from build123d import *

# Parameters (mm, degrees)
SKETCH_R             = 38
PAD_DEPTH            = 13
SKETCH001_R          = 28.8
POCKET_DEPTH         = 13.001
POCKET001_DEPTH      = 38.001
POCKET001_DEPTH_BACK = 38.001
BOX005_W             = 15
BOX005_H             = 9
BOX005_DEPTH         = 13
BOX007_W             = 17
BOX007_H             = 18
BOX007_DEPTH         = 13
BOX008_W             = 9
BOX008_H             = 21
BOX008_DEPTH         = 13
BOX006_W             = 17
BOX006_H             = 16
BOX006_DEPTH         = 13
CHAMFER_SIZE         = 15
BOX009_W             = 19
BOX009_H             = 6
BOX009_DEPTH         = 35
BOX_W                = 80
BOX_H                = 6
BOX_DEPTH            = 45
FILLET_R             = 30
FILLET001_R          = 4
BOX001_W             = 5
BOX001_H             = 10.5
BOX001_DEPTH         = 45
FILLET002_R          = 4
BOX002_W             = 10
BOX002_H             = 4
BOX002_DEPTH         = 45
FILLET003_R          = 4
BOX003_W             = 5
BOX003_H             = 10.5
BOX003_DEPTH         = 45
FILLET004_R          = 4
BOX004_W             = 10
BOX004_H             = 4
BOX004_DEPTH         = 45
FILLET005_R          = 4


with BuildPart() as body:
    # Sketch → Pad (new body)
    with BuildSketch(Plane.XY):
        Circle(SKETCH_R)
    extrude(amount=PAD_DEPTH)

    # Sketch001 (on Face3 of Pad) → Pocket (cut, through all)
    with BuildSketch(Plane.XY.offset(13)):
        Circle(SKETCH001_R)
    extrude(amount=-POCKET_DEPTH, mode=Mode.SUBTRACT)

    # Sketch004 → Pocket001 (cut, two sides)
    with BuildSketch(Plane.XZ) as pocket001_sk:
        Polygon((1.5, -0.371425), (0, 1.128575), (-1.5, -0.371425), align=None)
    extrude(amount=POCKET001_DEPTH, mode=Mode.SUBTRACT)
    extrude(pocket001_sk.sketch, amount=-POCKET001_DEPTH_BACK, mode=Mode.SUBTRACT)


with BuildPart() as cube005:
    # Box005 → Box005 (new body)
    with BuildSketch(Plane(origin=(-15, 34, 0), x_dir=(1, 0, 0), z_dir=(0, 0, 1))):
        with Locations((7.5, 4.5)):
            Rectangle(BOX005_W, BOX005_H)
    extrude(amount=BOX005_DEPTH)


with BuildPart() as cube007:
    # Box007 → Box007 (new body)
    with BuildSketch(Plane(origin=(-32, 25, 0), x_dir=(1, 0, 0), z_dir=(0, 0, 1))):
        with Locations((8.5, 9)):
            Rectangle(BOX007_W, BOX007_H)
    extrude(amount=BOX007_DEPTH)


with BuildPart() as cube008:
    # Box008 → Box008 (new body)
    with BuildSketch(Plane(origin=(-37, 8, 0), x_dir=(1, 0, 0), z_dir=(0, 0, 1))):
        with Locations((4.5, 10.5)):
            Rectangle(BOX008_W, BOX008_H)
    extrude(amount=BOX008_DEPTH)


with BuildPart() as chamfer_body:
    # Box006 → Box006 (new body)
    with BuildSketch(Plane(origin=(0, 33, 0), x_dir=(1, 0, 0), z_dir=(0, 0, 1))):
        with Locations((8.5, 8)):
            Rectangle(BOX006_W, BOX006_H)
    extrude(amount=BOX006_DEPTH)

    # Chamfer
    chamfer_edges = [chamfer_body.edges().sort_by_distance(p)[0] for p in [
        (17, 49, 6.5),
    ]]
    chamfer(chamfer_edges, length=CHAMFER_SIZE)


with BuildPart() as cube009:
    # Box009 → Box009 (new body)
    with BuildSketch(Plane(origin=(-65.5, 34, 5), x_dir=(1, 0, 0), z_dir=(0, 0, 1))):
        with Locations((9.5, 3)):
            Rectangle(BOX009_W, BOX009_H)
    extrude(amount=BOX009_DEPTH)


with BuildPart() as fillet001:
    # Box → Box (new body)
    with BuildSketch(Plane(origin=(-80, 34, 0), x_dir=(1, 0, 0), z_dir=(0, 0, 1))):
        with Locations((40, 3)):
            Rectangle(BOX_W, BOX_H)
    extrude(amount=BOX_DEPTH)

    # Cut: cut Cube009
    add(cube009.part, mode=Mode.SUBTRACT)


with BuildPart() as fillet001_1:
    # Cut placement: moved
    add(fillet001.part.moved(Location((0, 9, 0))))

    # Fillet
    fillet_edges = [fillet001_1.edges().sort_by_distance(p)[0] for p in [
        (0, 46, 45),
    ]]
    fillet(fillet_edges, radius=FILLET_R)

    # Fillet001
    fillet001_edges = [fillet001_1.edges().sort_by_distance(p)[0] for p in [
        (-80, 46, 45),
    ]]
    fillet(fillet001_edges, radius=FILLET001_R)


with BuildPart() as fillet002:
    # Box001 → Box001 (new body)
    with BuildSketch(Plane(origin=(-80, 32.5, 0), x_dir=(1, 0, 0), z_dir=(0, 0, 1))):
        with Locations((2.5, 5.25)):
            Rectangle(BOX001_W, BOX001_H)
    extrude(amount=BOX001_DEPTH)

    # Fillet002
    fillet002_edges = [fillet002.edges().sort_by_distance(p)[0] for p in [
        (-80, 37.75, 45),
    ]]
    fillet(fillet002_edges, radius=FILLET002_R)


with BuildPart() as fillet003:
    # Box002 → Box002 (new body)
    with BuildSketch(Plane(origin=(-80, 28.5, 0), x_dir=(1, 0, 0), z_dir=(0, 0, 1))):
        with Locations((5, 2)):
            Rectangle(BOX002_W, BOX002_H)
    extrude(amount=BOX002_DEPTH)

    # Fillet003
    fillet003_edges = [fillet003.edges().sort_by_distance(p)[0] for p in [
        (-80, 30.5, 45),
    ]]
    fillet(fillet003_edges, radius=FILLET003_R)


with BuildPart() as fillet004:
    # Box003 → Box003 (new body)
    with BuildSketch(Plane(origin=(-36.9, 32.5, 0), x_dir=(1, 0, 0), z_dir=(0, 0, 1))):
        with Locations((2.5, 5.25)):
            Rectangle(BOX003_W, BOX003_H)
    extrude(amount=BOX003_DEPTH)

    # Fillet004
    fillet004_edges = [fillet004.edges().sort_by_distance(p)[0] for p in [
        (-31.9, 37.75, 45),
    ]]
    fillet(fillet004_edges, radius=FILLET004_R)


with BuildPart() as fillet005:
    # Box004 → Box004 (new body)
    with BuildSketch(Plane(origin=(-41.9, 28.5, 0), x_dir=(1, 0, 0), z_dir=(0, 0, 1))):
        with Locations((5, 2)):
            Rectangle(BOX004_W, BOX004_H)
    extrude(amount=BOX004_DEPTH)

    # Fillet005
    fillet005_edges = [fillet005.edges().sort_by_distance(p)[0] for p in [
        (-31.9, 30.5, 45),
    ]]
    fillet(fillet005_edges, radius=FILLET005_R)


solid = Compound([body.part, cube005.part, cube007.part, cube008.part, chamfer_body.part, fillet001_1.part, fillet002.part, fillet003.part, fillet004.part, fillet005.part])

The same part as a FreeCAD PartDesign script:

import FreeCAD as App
import Part
import Sketcher
from FreeCAD import Vector


def edges_at(feature, points):
    """Names of the edges that pass closest to the given points."""
    edges = feature.Shape.Edges
    near = lambda p: min(range(len(edges)), key=lambda i: edges[i].distToShape(Part.Vertex(*p))[0])
    return sorted({f"Edge{near(p) + 1}" for p in points})

doc = App.newDocument("Part")
body = doc.addObject("PartDesign::Body", "Body")

# Sketch on XY plane
sketch1 = doc.addObject("Sketcher::SketchObject", "Sketch")
body.addObject(sketch1)
sketch1.AttachmentSupport = (doc.XY_Plane, [""])
sketch1.MapMode = "FlatFace"
sketch1.addGeometry(Part.Circle(Vector(0, 0, 0), Vector(0, 0, 1), 38), False)
sketch1.addConstraint(Sketcher.Constraint("Coincident", 0, 3, -1, 1))
sketch1.addConstraint(Sketcher.Constraint("Diameter", 0, 76.0))
pad1 = doc.addObject("PartDesign::Pad", "Pad")
body.addObject(pad1)
pad1.Profile = sketch1
pad1.Length = 13

# Sketch on XY plane
sketch2 = doc.addObject("Sketcher::SketchObject", "Sketch001")
body.addObject(sketch2)
sketch2.AttachmentSupport = (doc.XY_Plane, [""])
sketch2.MapMode = "FlatFace"
sketch2.AttachmentOffset = App.Placement(Vector(0, 0, 13), App.Rotation())
sketch2.addGeometry(Part.Circle(Vector(0, 0, 0), Vector(0, 0, 1), 29), False)
sketch2.addConstraint(Sketcher.Constraint("Coincident", 0, 3, -1, 1))
sketch2.addConstraint(Sketcher.Constraint("Diameter", 0, 57.6))
pocket1 = doc.addObject("PartDesign::Pocket", "Pocket")
body.addObject(pocket1)
pocket1.Profile = sketch2
pocket1.Type = "ThroughAll"

# Sketch on XZ plane
sketch3 = doc.addObject("Sketcher::SketchObject", "Sketch002")
body.addObject(sketch3)
sketch3.AttachmentSupport = (doc.XZ_Plane, [""])
sketch3.MapMode = "FlatFace"
sketch3.addGeometry(Part.LineSegment(Vector(1.5, -0.4, 0), Vector(0, 1.1, 0)), False)
sketch3.addGeometry(Part.LineSegment(Vector(0, 1.1, 0), Vector(-1.5, -0.4, 0)), False)
sketch3.addGeometry(Part.LineSegment(Vector(-1.5, -0.4, 0), Vector(1.5, -0.4, 0)), False)
sketch3.addConstraint(Sketcher.Constraint("Coincident", 0, 2, 1, 1))
sketch3.addConstraint(Sketcher.Constraint("Coincident", 1, 2, 2, 1))
sketch3.addConstraint(Sketcher.Constraint("Coincident", 2, 2, 0, 1))
sketch3.addConstraint(Sketcher.Constraint("Horizontal", 2))
sketch3.addConstraint(Sketcher.Constraint("PointOnObject", 0, 2, -2))
sketch3.addConstraint(Sketcher.Constraint("Perpendicular", 0, 1))
sketch3.addConstraint(Sketcher.Constraint("Equal", 0, 1))
sketch3.addConstraint(Sketcher.Constraint("DistanceX", 2, 1, 2, 2, 3.0))
sketch3.addConstraint(Sketcher.Constraint("DistanceY", -1, 1, 0, 2, 1.128575))
pocket2 = doc.addObject("PartDesign::Pocket", "Pocket001")
body.addObject(pocket2)
pocket2.Profile = sketch3
pocket2.Type = "ThroughAll"
pocket2.Midplane = True
body2 = doc.addObject("PartDesign::Body", "Body001")

# Sketch on XY plane
sketch4 = doc.addObject("Sketcher::SketchObject", "Sketch003")
body2.addObject(sketch4)
sketch4.AttachmentSupport = (doc.getObject("XY_Plane001"), [""])
sketch4.MapMode = "FlatFace"
sketch4.addGeometry(Part.LineSegment(Vector(-15, 43, 0), Vector(-15, 34, 0)), False)
sketch4.addGeometry(Part.LineSegment(Vector(-15, 34, 0), Vector(0, 34, 0)), False)
sketch4.addGeometry(Part.LineSegment(Vector(0, 34, 0), Vector(0, 43, 0)), False)
sketch4.addGeometry(Part.LineSegment(Vector(0, 43, 0), Vector(-15, 43, 0)), False)
sketch4.addConstraint(Sketcher.Constraint("Coincident", 0, 2, 1, 1))
sketch4.addConstraint(Sketcher.Constraint("Coincident", 1, 2, 2, 1))
sketch4.addConstraint(Sketcher.Constraint("Coincident", 2, 2, 3, 1))
sketch4.addConstraint(Sketcher.Constraint("Coincident", 3, 2, 0, 1))
sketch4.addConstraint(Sketcher.Constraint("Vertical", 0))
sketch4.addConstraint(Sketcher.Constraint("Horizontal", 1))
sketch4.addConstraint(Sketcher.Constraint("Vertical", 2))
sketch4.addConstraint(Sketcher.Constraint("Horizontal", 3))
sketch4.addConstraint(Sketcher.Constraint("PointOnObject", 1, 2, -2))
sketch4.addConstraint(Sketcher.Constraint("DistanceX", 1, 1, 1, 2, 15.0))
sketch4.addConstraint(Sketcher.Constraint("DistanceY", 0, 2, 0, 1, 9.0))
sketch4.addConstraint(Sketcher.Constraint("DistanceY", -1, 1, 0, 2, 34.0))
pad2 = doc.addObject("PartDesign::Pad", "Pad001")
body2.addObject(pad2)
pad2.Profile = sketch4
pad2.Length = 13
body3 = doc.addObject("PartDesign::Body", "Body002")

# Sketch on XY plane
sketch5 = doc.addObject("Sketcher::SketchObject", "Sketch004")
body3.addObject(sketch5)
sketch5.AttachmentSupport = (doc.getObject("XY_Plane002"), [""])
sketch5.MapMode = "FlatFace"
sketch5.addGeometry(Part.LineSegment(Vector(-32, 43, 0), Vector(-32, 25, 0)), False)
sketch5.addGeometry(Part.LineSegment(Vector(-32, 25, 0), Vector(-15, 25, 0)), False)
sketch5.addGeometry(Part.LineSegment(Vector(-15, 25, 0), Vector(-15, 43, 0)), False)
sketch5.addGeometry(Part.LineSegment(Vector(-15, 43, 0), Vector(-32, 43, 0)), False)
sketch5.addConstraint(Sketcher.Constraint("Coincident", 0, 2, 1, 1))
sketch5.addConstraint(Sketcher.Constraint("Coincident", 1, 2, 2, 1))
sketch5.addConstraint(Sketcher.Constraint("Coincident", 2, 2, 3, 1))
sketch5.addConstraint(Sketcher.Constraint("Coincident", 3, 2, 0, 1))
sketch5.addConstraint(Sketcher.Constraint("Vertical", 0))
sketch5.addConstraint(Sketcher.Constraint("Horizontal", 1))
sketch5.addConstraint(Sketcher.Constraint("Vertical", 2))
sketch5.addConstraint(Sketcher.Constraint("Horizontal", 3))
sketch5.addConstraint(Sketcher.Constraint("DistanceX", 1, 1, 1, 2, 17.0))
sketch5.addConstraint(Sketcher.Constraint("DistanceY", 0, 2, 0, 1, 18.0))
sketch5.addConstraint(Sketcher.Constraint("DistanceX", 0, 2, -1, 1, 32.0))
sketch5.addConstraint(Sketcher.Constraint("DistanceY", -1, 1, 0, 2, 25.0))
pad3 = doc.addObject("PartDesign::Pad", "Pad002")
body3.addObject(pad3)
pad3.Profile = sketch5
pad3.Length = 13
body4 = doc.addObject("PartDesign::Body", "Body003")

# Sketch on XY plane
sketch6 = doc.addObject("Sketcher::SketchObject", "Sketch005")
body4.addObject(sketch6)
sketch6.AttachmentSupport = (doc.getObject("XY_Plane003"), [""])
sketch6.MapMode = "FlatFace"
sketch6.addGeometry(Part.LineSegment(Vector(-37, 29, 0), Vector(-37, 8, 0)), False)
sketch6.addGeometry(Part.LineSegment(Vector(-37, 8, 0), Vector(-28, 8, 0)), False)
sketch6.addGeometry(Part.LineSegment(Vector(-28, 8, 0), Vector(-28, 29, 0)), False)
sketch6.addGeometry(Part.LineSegment(Vector(-28, 29, 0), Vector(-37, 29, 0)), False)
sketch6.addConstraint(Sketcher.Constraint("Coincident", 0, 2, 1, 1))
sketch6.addConstraint(Sketcher.Constraint("Coincident", 1, 2, 2, 1))
sketch6.addConstraint(Sketcher.Constraint("Coincident", 2, 2, 3, 1))
sketch6.addConstraint(Sketcher.Constraint("Coincident", 3, 2, 0, 1))
sketch6.addConstraint(Sketcher.Constraint("Vertical", 0))
sketch6.addConstraint(Sketcher.Constraint("Horizontal", 1))
sketch6.addConstraint(Sketcher.Constraint("Vertical", 2))
sketch6.addConstraint(Sketcher.Constraint("Horizontal", 3))
sketch6.addConstraint(Sketcher.Constraint("DistanceX", 1, 1, 1, 2, 9.0))
sketch6.addConstraint(Sketcher.Constraint("DistanceY", 0, 2, 0, 1, 21.0))
sketch6.addConstraint(Sketcher.Constraint("DistanceX", 0, 2, -1, 1, 37.0))
sketch6.addConstraint(Sketcher.Constraint("DistanceY", -1, 1, 0, 2, 8.0))
pad4 = doc.addObject("PartDesign::Pad", "Pad003")
body4.addObject(pad4)
pad4.Profile = sketch6
pad4.Length = 13
body5 = doc.addObject("PartDesign::Body", "Body004")

# Sketch on XY plane
sketch7 = doc.addObject("Sketcher::SketchObject", "Sketch006")
body5.addObject(sketch7)
sketch7.AttachmentSupport = (doc.getObject("XY_Plane004"), [""])
sketch7.MapMode = "FlatFace"
sketch7.addGeometry(Part.LineSegment(Vector(0, 49, 0), Vector(0, 33, 0)), False)
sketch7.addGeometry(Part.LineSegment(Vector(0, 33, 0), Vector(17, 33, 0)), False)
sketch7.addGeometry(Part.LineSegment(Vector(17, 33, 0), Vector(17, 49, 0)), False)
sketch7.addGeometry(Part.LineSegment(Vector(17, 49, 0), Vector(0, 49, 0)), False)
sketch7.addConstraint(Sketcher.Constraint("Coincident", 0, 2, 1, 1))
sketch7.addConstraint(Sketcher.Constraint("Coincident", 1, 2, 2, 1))
sketch7.addConstraint(Sketcher.Constraint("Coincident", 2, 2, 3, 1))
sketch7.addConstraint(Sketcher.Constraint("Coincident", 3, 2, 0, 1))
sketch7.addConstraint(Sketcher.Constraint("Vertical", 0))
sketch7.addConstraint(Sketcher.Constraint("Horizontal", 1))
sketch7.addConstraint(Sketcher.Constraint("Vertical", 2))
sketch7.addConstraint(Sketcher.Constraint("Horizontal", 3))
sketch7.addConstraint(Sketcher.Constraint("PointOnObject", 0, 2, -2))
sketch7.addConstraint(Sketcher.Constraint("DistanceX", 1, 1, 1, 2, 17.0))
sketch7.addConstraint(Sketcher.Constraint("DistanceY", 0, 2, 0, 1, 16.0))
sketch7.addConstraint(Sketcher.Constraint("DistanceY", -1, 1, 0, 2, 33.0))
pad5 = doc.addObject("PartDesign::Pad", "Pad004")
body5.addObject(pad5)
pad5.Profile = sketch7
pad5.Length = 13
doc.recompute()

chamfer = doc.addObject("PartDesign::Chamfer", "Chamfer")
body5.addObject(chamfer)
chamfer.Base = (pad5, edges_at(pad5, [(17, 49, 6.5)]))
chamfer.Size = 15
body6 = doc.addObject("PartDesign::Body", "Body005")

# Sketch on XY plane
sketch8 = doc.addObject("Sketcher::SketchObject", "Sketch007")
body6.addObject(sketch8)
sketch8.AttachmentSupport = (doc.getObject("XY_Plane005"), [""])
sketch8.MapMode = "FlatFace"
sketch8.AttachmentOffset = App.Placement(Vector(0, 0, 5), App.Rotation())
sketch8.addGeometry(Part.LineSegment(Vector(-66, 40, 0), Vector(-66, 34, 0)), False)
sketch8.addGeometry(Part.LineSegment(Vector(-66, 34, 0), Vector(-46, 34, 0)), False)
sketch8.addGeometry(Part.LineSegment(Vector(-46, 34, 0), Vector(-46, 40, 0)), False)
sketch8.addGeometry(Part.LineSegment(Vector(-46, 40, 0), Vector(-66, 40, 0)), False)
sketch8.addConstraint(Sketcher.Constraint("Coincident", 0, 2, 1, 1))
sketch8.addConstraint(Sketcher.Constraint("Coincident", 1, 2, 2, 1))
sketch8.addConstraint(Sketcher.Constraint("Coincident", 2, 2, 3, 1))
sketch8.addConstraint(Sketcher.Constraint("Coincident", 3, 2, 0, 1))
sketch8.addConstraint(Sketcher.Constraint("Vertical", 0))
sketch8.addConstraint(Sketcher.Constraint("Horizontal", 1))
sketch8.addConstraint(Sketcher.Constraint("Vertical", 2))
sketch8.addConstraint(Sketcher.Constraint("Horizontal", 3))
sketch8.addConstraint(Sketcher.Constraint("DistanceX", 1, 1, 1, 2, 19.0))
sketch8.addConstraint(Sketcher.Constraint("DistanceY", 0, 2, 0, 1, 6.0))
sketch8.addConstraint(Sketcher.Constraint("DistanceY", -1, 1, 0, 2, 34.0))
sketch8.addConstraint(Sketcher.Constraint("DistanceX", 0, 2, -1, 1, 65.5))
pad6 = doc.addObject("PartDesign::Pad", "Pad005")
body6.addObject(pad6)
pad6.Profile = sketch8
pad6.Length = 35
body7 = doc.addObject("PartDesign::Body", "Body006")

# Sketch on XY plane
sketch9 = doc.addObject("Sketcher::SketchObject", "Sketch008")
body7.addObject(sketch9)
sketch9.AttachmentSupport = (doc.getObject("XY_Plane006"), [""])
sketch9.MapMode = "FlatFace"
sketch9.addGeometry(Part.LineSegment(Vector(-80, 40, 0), Vector(-80, 34, 0)), False)
sketch9.addGeometry(Part.LineSegment(Vector(-80, 34, 0), Vector(0, 34, 0)), False)
sketch9.addGeometry(Part.LineSegment(Vector(0, 34, 0), Vector(0, 40, 0)), False)
sketch9.addGeometry(Part.LineSegment(Vector(0, 40, 0), Vector(-80, 40, 0)), False)
sketch9.addConstraint(Sketcher.Constraint("Coincident", 0, 2, 1, 1))
sketch9.addConstraint(Sketcher.Constraint("Coincident", 1, 2, 2, 1))
sketch9.addConstraint(Sketcher.Constraint("Coincident", 2, 2, 3, 1))
sketch9.addConstraint(Sketcher.Constraint("Coincident", 3, 2, 0, 1))
sketch9.addConstraint(Sketcher.Constraint("Vertical", 0))
sketch9.addConstraint(Sketcher.Constraint("Horizontal", 1))
sketch9.addConstraint(Sketcher.Constraint("Vertical", 2))
sketch9.addConstraint(Sketcher.Constraint("Horizontal", 3))
sketch9.addConstraint(Sketcher.Constraint("PointOnObject", 1, 2, -2))
sketch9.addConstraint(Sketcher.Constraint("DistanceX", 1, 1, 1, 2, 80.0))
sketch9.addConstraint(Sketcher.Constraint("DistanceY", 0, 2, 0, 1, 6.0))
sketch9.addConstraint(Sketcher.Constraint("DistanceY", -1, 1, 0, 2, 34.0))
pad7 = doc.addObject("PartDesign::Pad", "Pad006")
body7.addObject(pad7)
pad7.Profile = sketch9
pad7.Length = 45
doc.recompute()

boolean = doc.addObject("PartDesign::Boolean", "Boolean")
body7.addObject(boolean)
boolean.Type = "Cut"
boolean.addObjects([body6])
body8 = doc.addObject("PartDesign::Body", "Body007")
doc.recompute()

body7.Placement = App.Placement(Vector(0, 9, 0), App.Rotation(Vector(0, 0, 1), 0))
boolean2 = doc.addObject("PartDesign::Boolean", "Boolean001")
body8.addObject(boolean2)
boolean2.Type = "Fuse"
boolean2.addObjects([body7])
doc.recompute()

fillet = doc.addObject("PartDesign::Fillet", "Fillet")
body8.addObject(fillet)
fillet.Base = (boolean2, edges_at(boolean2, [(0, 46, 45)]))
fillet.Radius = 30
doc.recompute()

fillet2 = doc.addObject("PartDesign::Fillet", "Fillet001")
body8.addObject(fillet2)
fillet2.Base = (fillet, edges_at(fillet, [(-80, 46, 45)]))
fillet2.Radius = 4
body9 = doc.addObject("PartDesign::Body", "Body008")

# Sketch on XY plane
sketch10 = doc.addObject("Sketcher::SketchObject", "Sketch009")
body9.addObject(sketch10)
sketch10.AttachmentSupport = (doc.getObject("XY_Plane008"), [""])
sketch10.MapMode = "FlatFace"
sketch10.addGeometry(Part.LineSegment(Vector(-80, 43, 0), Vector(-80, 32, 0)), False)
sketch10.addGeometry(Part.LineSegment(Vector(-80, 32, 0), Vector(-75, 32, 0)), False)
sketch10.addGeometry(Part.LineSegment(Vector(-75, 32, 0), Vector(-75, 43, 0)), False)
sketch10.addGeometry(Part.LineSegment(Vector(-75, 43, 0), Vector(-80, 43, 0)), False)
sketch10.addConstraint(Sketcher.Constraint("Coincident", 0, 2, 1, 1))
sketch10.addConstraint(Sketcher.Constraint("Coincident", 1, 2, 2, 1))
sketch10.addConstraint(Sketcher.Constraint("Coincident", 2, 2, 3, 1))
sketch10.addConstraint(Sketcher.Constraint("Coincident", 3, 2, 0, 1))
sketch10.addConstraint(Sketcher.Constraint("Vertical", 0))
sketch10.addConstraint(Sketcher.Constraint("Horizontal", 1))
sketch10.addConstraint(Sketcher.Constraint("Vertical", 2))
sketch10.addConstraint(Sketcher.Constraint("Horizontal", 3))
sketch10.addConstraint(Sketcher.Constraint("DistanceX", 1, 1, 1, 2, 5.0))
sketch10.addConstraint(Sketcher.Constraint("DistanceY", 0, 2, 0, 1, 10.5))
sketch10.addConstraint(Sketcher.Constraint("DistanceX", 0, 2, -1, 1, 80.0))
sketch10.addConstraint(Sketcher.Constraint("DistanceY", -1, 1, 2, 2, 43.0))
pad8 = doc.addObject("PartDesign::Pad", "Pad007")
body9.addObject(pad8)
pad8.Profile = sketch10
pad8.Length = 45
doc.recompute()

fillet3 = doc.addObject("PartDesign::Fillet", "Fillet002")
body9.addObject(fillet3)
fillet3.Base = (pad8, edges_at(pad8, [(-80, 37.75, 45)]))
fillet3.Radius = 4
body10 = doc.addObject("PartDesign::Body", "Body009")

# Sketch on XY plane
sketch11 = doc.addObject("Sketcher::SketchObject", "Sketch010")
body10.addObject(sketch11)
sketch11.AttachmentSupport = (doc.getObject("XY_Plane009"), [""])
sketch11.MapMode = "FlatFace"
sketch11.addGeometry(Part.LineSegment(Vector(-80, 32.5, 0), Vector(-80, 28.5, 0)), False)
sketch11.addGeometry(Part.LineSegment(Vector(-80, 28.5, 0), Vector(-70, 28.5, 0)), False)
sketch11.addGeometry(Part.LineSegment(Vector(-70, 28.5, 0), Vector(-70, 32.5, 0)), False)
sketch11.addGeometry(Part.LineSegment(Vector(-70, 32.5, 0), Vector(-80, 32.5, 0)), False)
sketch11.addConstraint(Sketcher.Constraint("Coincident", 0, 2, 1, 1))
sketch11.addConstraint(Sketcher.Constraint("Coincident", 1, 2, 2, 1))
sketch11.addConstraint(Sketcher.Constraint("Coincident", 2, 2, 3, 1))
sketch11.addConstraint(Sketcher.Constraint("Coincident", 3, 2, 0, 1))
sketch11.addConstraint(Sketcher.Constraint("Vertical", 0))
sketch11.addConstraint(Sketcher.Constraint("Horizontal", 1))
sketch11.addConstraint(Sketcher.Constraint("Vertical", 2))
sketch11.addConstraint(Sketcher.Constraint("Horizontal", 3))
sketch11.addConstraint(Sketcher.Constraint("DistanceX", 1, 1, 1, 2, 10.0))
sketch11.addConstraint(Sketcher.Constraint("DistanceY", 0, 2, 0, 1, 4.0))
sketch11.addConstraint(Sketcher.Constraint("DistanceX", 0, 2, -1, 1, 80.0))
sketch11.addConstraint(Sketcher.Constraint("DistanceY", -1, 1, 0, 2, 28.5))
pad9 = doc.addObject("PartDesign::Pad", "Pad008")
body10.addObject(pad9)
pad9.Profile = sketch11
pad9.Length = 45
doc.recompute()

fillet4 = doc.addObject("PartDesign::Fillet", "Fillet003")
body10.addObject(fillet4)
fillet4.Base = (pad9, edges_at(pad9, [(-80, 30.5, 45)]))
fillet4.Radius = 4
body11 = doc.addObject("PartDesign::Body", "Body010")

# Sketch on XY plane
sketch12 = doc.addObject("Sketcher::SketchObject", "Sketch011")
body11.addObject(sketch12)
sketch12.AttachmentSupport = (doc.getObject("XY_Plane010"), [""])
sketch12.MapMode = "FlatFace"
sketch12.addGeometry(Part.LineSegment(Vector(-37, 43, 0), Vector(-37, 32, 0)), False)
sketch12.addGeometry(Part.LineSegment(Vector(-37, 32, 0), Vector(-32, 32, 0)), False)
sketch12.addGeometry(Part.LineSegment(Vector(-32, 32, 0), Vector(-32, 43, 0)), False)
sketch12.addGeometry(Part.LineSegment(Vector(-32, 43, 0), Vector(-37, 43, 0)), False)
sketch12.addConstraint(Sketcher.Constraint("Coincident", 0, 2, 1, 1))
sketch12.addConstraint(Sketcher.Constraint("Coincident", 1, 2, 2, 1))
sketch12.addConstraint(Sketcher.Constraint("Coincident", 2, 2, 3, 1))
sketch12.addConstraint(Sketcher.Constraint("Coincident", 3, 2, 0, 1))
sketch12.addConstraint(Sketcher.Constraint("Vertical", 0))
sketch12.addConstraint(Sketcher.Constraint("Horizontal", 1))
sketch12.addConstraint(Sketcher.Constraint("Vertical", 2))
sketch12.addConstraint(Sketcher.Constraint("Horizontal", 3))
sketch12.addConstraint(Sketcher.Constraint("DistanceX", 1, 1, 1, 2, 5.0))
sketch12.addConstraint(Sketcher.Constraint("DistanceY", 0, 2, 0, 1, 10.5))
sketch12.addConstraint(Sketcher.Constraint("DistanceY", -1, 1, 2, 2, 43.0))
sketch12.addConstraint(Sketcher.Constraint("DistanceX", 0, 2, -1, 1, 36.9))
pad10 = doc.addObject("PartDesign::Pad", "Pad009")
body11.addObject(pad10)
pad10.Profile = sketch12
pad10.Length = 45
doc.recompute()

fillet5 = doc.addObject("PartDesign::Fillet", "Fillet004")
body11.addObject(fillet5)
fillet5.Base = (pad10, edges_at(pad10, [(-31.9, 37.75, 45)]))
fillet5.Radius = 4
body12 = doc.addObject("PartDesign::Body", "Body011")

# Sketch on XY plane
sketch13 = doc.addObject("Sketcher::SketchObject", "Sketch012")
body12.addObject(sketch13)
sketch13.AttachmentSupport = (doc.getObject("XY_Plane011"), [""])
sketch13.MapMode = "FlatFace"
sketch13.addGeometry(Part.LineSegment(Vector(-41.9, 32.5, 0), Vector(-41.9, 28.5, 0)), False)
sketch13.addGeometry(Part.LineSegment(Vector(-41.9, 28.5, 0), Vector(-31.9, 28.5, 0)), False)
sketch13.addGeometry(Part.LineSegment(Vector(-31.9, 28.5, 0), Vector(-31.9, 32.5, 0)), False)
sketch13.addGeometry(Part.LineSegment(Vector(-31.9, 32.5, 0), Vector(-41.9, 32.5, 0)), False)
sketch13.addConstraint(Sketcher.Constraint("Coincident", 0, 2, 1, 1))
sketch13.addConstraint(Sketcher.Constraint("Coincident", 1, 2, 2, 1))
sketch13.addConstraint(Sketcher.Constraint("Coincident", 2, 2, 3, 1))
sketch13.addConstraint(Sketcher.Constraint("Coincident", 3, 2, 0, 1))
sketch13.addConstraint(Sketcher.Constraint("Vertical", 0))
sketch13.addConstraint(Sketcher.Constraint("Horizontal", 1))
sketch13.addConstraint(Sketcher.Constraint("Vertical", 2))
sketch13.addConstraint(Sketcher.Constraint("Horizontal", 3))
sketch13.addConstraint(Sketcher.Constraint("DistanceX", 1, 1, 1, 2, 10.0))
sketch13.addConstraint(Sketcher.Constraint("DistanceY", 0, 2, 0, 1, 4.0))
sketch13.addConstraint(Sketcher.Constraint("DistanceX", 0, 2, -1, 1, 41.9))
sketch13.addConstraint(Sketcher.Constraint("DistanceY", -1, 1, 0, 2, 28.5))
pad11 = doc.addObject("PartDesign::Pad", "Pad010")
body12.addObject(pad11)
pad11.Profile = sketch13
pad11.Length = 45
doc.recompute()

fillet6 = doc.addObject("PartDesign::Fillet", "Fillet005")
body12.addObject(fillet6)
fillet6.Base = (pad11, edges_at(pad11, [(-31.9, 30.5, 45)]))
fillet6.Radius = 4

doc.recompute()
